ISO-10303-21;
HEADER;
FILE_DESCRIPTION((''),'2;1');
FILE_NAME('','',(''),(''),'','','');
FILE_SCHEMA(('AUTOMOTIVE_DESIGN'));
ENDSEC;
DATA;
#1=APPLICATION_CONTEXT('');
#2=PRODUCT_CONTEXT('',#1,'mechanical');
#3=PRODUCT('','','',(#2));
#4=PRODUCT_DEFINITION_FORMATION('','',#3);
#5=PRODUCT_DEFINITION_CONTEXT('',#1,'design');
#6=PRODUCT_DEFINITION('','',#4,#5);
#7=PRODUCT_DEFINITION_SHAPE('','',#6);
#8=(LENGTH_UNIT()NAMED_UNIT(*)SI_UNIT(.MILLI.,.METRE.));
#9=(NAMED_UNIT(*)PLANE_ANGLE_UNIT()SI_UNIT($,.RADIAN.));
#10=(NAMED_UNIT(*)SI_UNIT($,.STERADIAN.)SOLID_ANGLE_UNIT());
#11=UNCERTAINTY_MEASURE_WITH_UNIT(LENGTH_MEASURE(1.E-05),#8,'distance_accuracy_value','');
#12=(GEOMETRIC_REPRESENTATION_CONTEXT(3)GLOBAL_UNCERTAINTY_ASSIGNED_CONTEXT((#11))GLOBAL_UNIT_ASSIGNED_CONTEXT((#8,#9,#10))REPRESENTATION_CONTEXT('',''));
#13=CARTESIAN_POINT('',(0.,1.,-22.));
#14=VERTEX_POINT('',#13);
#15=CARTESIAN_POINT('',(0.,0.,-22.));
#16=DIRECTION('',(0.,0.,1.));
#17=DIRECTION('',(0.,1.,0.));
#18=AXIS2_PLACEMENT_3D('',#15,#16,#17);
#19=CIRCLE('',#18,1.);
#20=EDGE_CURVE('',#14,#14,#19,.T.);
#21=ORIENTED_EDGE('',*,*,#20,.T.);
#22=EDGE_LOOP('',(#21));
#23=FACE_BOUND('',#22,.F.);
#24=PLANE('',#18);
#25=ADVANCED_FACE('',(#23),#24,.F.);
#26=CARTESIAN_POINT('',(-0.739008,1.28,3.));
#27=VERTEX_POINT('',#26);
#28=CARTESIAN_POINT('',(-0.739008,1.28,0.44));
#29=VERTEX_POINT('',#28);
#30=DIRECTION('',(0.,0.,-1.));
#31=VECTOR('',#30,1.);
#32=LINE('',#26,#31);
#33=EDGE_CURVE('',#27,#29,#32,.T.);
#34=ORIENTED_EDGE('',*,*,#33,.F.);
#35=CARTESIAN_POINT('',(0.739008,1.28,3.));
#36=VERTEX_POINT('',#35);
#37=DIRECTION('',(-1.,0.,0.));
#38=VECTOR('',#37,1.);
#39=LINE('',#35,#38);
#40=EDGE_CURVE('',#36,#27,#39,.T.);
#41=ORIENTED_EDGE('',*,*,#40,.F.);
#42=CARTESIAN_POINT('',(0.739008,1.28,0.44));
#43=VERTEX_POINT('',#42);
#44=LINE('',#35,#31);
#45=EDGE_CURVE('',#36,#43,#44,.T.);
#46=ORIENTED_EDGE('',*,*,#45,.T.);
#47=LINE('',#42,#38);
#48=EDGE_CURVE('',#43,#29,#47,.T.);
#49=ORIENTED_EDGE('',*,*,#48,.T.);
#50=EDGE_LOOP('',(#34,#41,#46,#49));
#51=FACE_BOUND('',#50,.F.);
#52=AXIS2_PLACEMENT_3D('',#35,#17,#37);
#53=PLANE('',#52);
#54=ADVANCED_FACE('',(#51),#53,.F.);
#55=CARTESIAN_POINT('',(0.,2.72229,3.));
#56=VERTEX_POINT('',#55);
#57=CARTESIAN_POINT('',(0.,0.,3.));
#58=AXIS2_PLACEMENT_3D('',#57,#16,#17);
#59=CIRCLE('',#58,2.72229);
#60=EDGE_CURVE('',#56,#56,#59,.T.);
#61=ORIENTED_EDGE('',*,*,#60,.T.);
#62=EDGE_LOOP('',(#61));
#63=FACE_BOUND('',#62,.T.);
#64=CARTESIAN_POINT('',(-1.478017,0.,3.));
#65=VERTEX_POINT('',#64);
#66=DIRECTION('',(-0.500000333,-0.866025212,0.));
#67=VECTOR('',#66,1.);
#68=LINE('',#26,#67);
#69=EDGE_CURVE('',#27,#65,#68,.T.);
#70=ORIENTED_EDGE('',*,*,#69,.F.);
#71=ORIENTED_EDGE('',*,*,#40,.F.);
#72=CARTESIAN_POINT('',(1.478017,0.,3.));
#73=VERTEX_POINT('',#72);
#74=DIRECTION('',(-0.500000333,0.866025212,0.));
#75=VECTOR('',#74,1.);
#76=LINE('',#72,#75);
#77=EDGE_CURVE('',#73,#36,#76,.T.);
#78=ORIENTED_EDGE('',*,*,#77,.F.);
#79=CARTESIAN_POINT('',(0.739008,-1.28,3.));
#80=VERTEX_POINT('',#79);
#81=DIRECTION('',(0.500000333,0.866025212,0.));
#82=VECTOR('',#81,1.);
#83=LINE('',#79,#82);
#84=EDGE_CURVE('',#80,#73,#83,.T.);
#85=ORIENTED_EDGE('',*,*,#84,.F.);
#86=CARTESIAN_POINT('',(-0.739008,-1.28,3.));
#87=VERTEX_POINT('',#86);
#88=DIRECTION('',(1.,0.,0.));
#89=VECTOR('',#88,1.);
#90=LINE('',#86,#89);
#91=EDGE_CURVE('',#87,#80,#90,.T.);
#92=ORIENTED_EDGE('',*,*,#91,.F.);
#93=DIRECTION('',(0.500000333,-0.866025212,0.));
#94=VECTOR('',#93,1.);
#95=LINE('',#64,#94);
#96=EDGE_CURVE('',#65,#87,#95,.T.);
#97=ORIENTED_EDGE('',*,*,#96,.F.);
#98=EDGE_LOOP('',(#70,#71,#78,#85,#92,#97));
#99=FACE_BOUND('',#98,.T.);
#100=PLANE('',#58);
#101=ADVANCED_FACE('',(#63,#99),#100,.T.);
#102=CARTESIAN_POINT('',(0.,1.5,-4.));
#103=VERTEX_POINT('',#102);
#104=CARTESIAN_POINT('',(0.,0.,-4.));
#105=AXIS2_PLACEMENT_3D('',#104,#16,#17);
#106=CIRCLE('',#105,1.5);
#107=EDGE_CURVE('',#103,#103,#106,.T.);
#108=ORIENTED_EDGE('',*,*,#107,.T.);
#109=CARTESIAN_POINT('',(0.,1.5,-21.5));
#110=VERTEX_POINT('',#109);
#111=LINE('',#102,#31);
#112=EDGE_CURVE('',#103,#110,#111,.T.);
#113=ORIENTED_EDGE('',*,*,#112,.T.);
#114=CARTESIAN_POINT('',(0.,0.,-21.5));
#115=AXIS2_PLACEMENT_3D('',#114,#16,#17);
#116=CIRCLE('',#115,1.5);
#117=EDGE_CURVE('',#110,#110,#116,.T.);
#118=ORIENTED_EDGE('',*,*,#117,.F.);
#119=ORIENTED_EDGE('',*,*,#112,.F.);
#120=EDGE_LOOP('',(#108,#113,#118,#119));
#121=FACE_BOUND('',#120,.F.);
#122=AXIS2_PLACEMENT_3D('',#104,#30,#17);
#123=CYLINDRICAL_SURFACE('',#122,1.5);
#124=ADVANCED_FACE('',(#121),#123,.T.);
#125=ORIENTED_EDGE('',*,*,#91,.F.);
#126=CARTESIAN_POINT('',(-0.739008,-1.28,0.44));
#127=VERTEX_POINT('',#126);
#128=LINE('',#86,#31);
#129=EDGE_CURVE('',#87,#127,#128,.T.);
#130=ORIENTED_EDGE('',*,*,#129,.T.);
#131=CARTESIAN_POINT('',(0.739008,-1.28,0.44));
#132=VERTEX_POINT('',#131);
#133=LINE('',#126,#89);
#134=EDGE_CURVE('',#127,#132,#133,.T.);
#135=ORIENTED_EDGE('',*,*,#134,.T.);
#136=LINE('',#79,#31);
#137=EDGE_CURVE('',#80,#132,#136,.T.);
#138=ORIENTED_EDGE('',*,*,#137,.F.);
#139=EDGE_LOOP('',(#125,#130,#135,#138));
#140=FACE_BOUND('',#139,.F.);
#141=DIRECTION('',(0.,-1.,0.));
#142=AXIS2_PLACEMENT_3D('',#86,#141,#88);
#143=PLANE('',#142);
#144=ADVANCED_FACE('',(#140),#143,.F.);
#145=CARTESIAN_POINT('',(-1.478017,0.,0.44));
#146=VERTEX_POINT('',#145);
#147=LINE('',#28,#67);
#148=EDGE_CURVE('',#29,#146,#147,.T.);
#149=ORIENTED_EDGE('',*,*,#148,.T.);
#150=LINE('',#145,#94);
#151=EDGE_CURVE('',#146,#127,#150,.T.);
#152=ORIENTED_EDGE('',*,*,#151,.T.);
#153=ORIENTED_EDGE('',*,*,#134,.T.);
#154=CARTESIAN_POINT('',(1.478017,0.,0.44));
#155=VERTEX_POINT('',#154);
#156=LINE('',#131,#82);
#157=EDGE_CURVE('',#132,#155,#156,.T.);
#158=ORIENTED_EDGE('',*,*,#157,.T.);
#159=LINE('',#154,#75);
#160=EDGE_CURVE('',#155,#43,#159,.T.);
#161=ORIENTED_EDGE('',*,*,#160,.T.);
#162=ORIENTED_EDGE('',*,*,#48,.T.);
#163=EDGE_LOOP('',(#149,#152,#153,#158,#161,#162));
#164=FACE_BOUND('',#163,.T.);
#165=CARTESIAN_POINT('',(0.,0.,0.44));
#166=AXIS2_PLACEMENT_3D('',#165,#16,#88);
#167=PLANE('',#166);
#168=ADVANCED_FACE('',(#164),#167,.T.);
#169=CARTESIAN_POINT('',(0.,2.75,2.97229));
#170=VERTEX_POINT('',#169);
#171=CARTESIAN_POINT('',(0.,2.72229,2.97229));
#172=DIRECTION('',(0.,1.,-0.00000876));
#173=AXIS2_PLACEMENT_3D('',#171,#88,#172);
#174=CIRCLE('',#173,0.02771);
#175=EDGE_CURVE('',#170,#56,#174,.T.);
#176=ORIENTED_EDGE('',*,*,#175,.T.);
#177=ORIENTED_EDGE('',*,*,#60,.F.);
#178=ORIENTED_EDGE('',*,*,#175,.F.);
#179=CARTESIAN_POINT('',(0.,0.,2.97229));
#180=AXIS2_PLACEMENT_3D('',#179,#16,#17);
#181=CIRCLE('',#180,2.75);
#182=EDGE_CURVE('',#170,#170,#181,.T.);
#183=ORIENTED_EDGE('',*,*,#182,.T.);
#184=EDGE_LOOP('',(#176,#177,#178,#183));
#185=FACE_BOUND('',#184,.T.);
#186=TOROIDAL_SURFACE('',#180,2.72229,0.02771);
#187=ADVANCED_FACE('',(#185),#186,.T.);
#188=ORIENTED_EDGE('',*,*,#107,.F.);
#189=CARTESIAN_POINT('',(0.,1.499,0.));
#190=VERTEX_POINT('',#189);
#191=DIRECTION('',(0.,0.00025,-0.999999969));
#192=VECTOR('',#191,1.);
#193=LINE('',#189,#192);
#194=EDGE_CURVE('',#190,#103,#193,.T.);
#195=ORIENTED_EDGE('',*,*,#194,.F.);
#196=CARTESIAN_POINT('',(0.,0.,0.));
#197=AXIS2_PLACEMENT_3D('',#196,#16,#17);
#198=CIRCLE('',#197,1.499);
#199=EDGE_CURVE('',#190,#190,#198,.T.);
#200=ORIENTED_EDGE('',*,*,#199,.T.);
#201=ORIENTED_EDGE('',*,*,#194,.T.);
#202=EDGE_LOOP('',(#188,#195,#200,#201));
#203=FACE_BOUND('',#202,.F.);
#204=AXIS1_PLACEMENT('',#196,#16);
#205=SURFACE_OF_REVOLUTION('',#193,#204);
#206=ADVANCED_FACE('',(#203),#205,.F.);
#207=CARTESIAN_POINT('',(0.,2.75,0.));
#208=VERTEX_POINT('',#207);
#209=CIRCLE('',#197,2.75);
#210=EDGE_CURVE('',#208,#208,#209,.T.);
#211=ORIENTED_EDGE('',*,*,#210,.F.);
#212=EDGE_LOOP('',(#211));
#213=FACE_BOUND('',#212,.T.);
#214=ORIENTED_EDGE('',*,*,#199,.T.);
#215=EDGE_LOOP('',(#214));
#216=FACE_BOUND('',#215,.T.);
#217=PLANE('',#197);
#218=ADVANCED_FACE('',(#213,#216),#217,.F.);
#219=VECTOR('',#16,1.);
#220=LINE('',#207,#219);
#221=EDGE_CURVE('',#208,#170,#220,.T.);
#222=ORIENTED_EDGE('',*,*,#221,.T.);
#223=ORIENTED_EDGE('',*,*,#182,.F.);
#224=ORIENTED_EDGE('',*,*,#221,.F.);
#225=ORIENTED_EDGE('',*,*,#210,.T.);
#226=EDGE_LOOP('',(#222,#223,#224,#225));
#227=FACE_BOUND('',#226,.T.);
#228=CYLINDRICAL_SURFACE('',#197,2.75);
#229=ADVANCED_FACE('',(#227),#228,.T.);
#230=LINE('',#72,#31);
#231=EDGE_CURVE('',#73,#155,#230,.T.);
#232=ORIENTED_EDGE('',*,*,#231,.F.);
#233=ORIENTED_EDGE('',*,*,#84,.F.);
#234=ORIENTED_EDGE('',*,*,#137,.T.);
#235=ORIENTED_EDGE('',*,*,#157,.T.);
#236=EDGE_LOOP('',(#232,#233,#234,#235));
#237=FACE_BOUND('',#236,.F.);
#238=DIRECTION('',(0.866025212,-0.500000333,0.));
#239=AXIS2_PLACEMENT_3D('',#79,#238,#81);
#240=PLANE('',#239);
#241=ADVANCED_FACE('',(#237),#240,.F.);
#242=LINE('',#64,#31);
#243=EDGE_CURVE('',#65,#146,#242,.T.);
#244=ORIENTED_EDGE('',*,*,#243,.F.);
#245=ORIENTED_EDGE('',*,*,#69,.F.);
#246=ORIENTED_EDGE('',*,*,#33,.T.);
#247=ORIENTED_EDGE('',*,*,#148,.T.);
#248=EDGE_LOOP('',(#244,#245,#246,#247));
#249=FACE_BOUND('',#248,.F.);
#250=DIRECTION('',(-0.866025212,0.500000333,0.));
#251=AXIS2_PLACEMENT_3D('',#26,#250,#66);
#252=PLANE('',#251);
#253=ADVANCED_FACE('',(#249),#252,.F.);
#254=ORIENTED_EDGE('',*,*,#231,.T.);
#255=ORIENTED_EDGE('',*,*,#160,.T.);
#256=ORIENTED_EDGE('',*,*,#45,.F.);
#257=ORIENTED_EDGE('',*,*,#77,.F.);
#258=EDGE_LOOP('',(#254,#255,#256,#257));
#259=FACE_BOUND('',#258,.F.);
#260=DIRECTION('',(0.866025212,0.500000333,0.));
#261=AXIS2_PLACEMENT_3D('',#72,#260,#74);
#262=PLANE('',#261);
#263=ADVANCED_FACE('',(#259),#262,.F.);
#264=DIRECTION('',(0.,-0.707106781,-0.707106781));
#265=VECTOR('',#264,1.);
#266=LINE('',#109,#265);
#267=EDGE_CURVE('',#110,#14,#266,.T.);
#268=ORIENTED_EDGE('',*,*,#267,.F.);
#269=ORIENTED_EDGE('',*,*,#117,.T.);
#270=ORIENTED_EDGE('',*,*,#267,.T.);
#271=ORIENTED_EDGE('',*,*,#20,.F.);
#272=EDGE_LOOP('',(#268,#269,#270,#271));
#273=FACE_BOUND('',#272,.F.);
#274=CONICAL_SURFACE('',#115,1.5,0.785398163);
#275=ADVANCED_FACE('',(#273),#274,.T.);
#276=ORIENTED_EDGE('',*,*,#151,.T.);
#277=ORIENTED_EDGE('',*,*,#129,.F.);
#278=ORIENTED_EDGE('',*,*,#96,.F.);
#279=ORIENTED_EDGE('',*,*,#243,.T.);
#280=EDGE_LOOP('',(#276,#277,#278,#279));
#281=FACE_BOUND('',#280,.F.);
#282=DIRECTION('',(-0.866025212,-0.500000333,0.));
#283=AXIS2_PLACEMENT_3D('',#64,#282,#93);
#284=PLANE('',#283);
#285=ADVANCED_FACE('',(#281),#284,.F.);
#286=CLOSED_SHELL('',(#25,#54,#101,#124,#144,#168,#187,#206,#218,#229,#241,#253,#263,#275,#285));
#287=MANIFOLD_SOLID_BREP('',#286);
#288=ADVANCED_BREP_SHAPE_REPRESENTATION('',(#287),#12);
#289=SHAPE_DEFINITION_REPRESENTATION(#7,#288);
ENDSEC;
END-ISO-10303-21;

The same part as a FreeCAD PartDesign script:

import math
import FreeCAD as App
import Part
import Sketcher
Q = App.Units.Quantity

doc = App.newDocument("Part")
params = doc.addObject("Spreadsheet::Sheet", "Params")
for row, (alias, value) in enumerate([
    ("sketch1_width", "1 mm"),
    ("sketch1_height", "25 mm"),
    ("sketch1_length", "4 mm"),
    ("sketch1_height2", "17.5 mm"),
    ("revolution_angle", "360 deg"),
    ("pocket1_length", "2.56 mm"),
], start=1):
    params.set(f"A{row}", alias)
    params.set(f"B{row}", "=" + value)
    params.setAlias(f"B{row}", alias)

body = doc.addObject("PartDesign::Body", "Body")

sketch1 = body.newObject("Sketcher::SketchObject", "Sketch")
sketch1.AttachmentSupport = (doc.getObject("YZ_Plane"), [""])
sketch1.MapMode = "FlatFace"
sketch1.addGeometry([
    Part.LineSegment(App.Vector(1.499, 0, 0), App.Vector(2.75, 0, 0)),
    Part.LineSegment(App.Vector(2.75, 0, 0), App.Vector(2.75, 2.972, 0)),
    Part.ArcOfCircle(Part.Circle(App.Vector(2.722, 2.972, 0), App.Vector(0, 0, 1), 0.028), math.radians(0), math.radians(90)),
    Part.LineSegment(App.Vector(2.722, 3, 0), App.Vector(0, 3, 0)),
    Part.LineSegment(App.Vector(0, 3, 0), App.Vector(0, -22, 0)),
    Part.LineSegment(App.Vector(0, -22, 0), App.Vector(1, -22, 0)),
    Part.LineSegment(App.Vector(1, -22, 0), App.Vector(1.5, -21.5, 0)),
    Part.LineSegment(App.Vector(1.5, -21.5, 0), App.Vector(1.5, -4, 0)),
    Part.LineSegment(App.Vector(1.5, -4, 0), App.Vector(1.499, 0, 0)),
], False)
sketch1.addConstraint([
    Sketcher.Constraint("Coincident", 0, 2, 1, 1),
    Sketcher.Constraint("Coincident", 1, 2, 2, 1),
    Sketcher.Constraint("Coincident", 2, 2, 3, 1),
    Sketcher.Constraint("Coincident", 3, 2, 4, 1),
    Sketcher.Constraint("Coincident", 4, 2, 5, 1),
    Sketcher.Constraint("Coincident", 5, 2, 6, 1),
    Sketcher.Constraint("Coincident", 6, 2, 7, 1),
    Sketcher.Constraint("Coincident", 7, 2, 8, 1),
    Sketcher.Constraint("Coincident", 8, 2, 0, 1),
    Sketcher.Constraint("Horizontal", 0),
    Sketcher.Constraint("Vertical", 1),
    Sketcher.Constraint("Horizontal", 3),
    Sketcher.Constraint("Vertical", 4),
    Sketcher.Constraint("Horizontal", 5),
    Sketcher.Constraint("Vertical", 7),
    Sketcher.Constraint("PointOnObject", 0, 2, -1),
    Sketcher.Constraint("PointOnObject", 3, 2, -2),
    Sketcher.Constraint("Horizontal", 2, 3, 1, 2),
    Sketcher.Constraint("DistanceX", 5, 1, 5, 2, 1.0),
    Sketcher.Constraint("DistanceY", 4, 2, 4, 1, 25.0),
    Sketcher.Constraint("Angle", 6, Q("45 deg")),
    Sketcher.Constraint("Distance", 8, 4.0),
    Sketcher.Constraint("DistanceY", 7, 1, 7, 2, 17.5),
    Sketcher.Constraint("DistanceY", -1, 1, 2, 2, 3.0),
    Sketcher.Constraint("DistanceX", 0, 1, 0, 2, 1.251),
    Sketcher.Constraint("DistanceX", -1, 1, 0, 2, 2.75),
    Sketcher.Constraint("Radius", 2, 0.02771),
    Sketcher.Constraint("DistanceX", 3, 2, 3, 1, 2.72229),
])
sketch1.setExpression("Constraints[18]", "Params.sketch1_width")
sketch1.setExpression("Constraints[19]", "Params.sketch1_height")
sketch1.setExpression("Constraints[21]", "Params.sketch1_length")
sketch1.setExpression("Constraints[22]", "Params.sketch1_height2")
revolution = body.newObject("PartDesign::Revolution", "Revolution")
revolution.Profile = sketch1
revolution.ReferenceAxis = (sketch1, ["V_Axis"])
revolution.setExpression("Angle", "Params.revolution_angle")

sketch2 = body.newObject("Sketcher::SketchObject", "Sketch001")
sketch2.AttachmentSupport = (doc.getObject("XY_Plane"), [""])
sketch2.MapMode = "FlatFace"
sketch2.AttachmentOffset = App.Placement(App.Vector(0, 0, 3), App.Rotation())
sketch2.addGeometry([
    Part.LineSegment(App.Vector(1.5, 0, 0), App.Vector(0.7, 1.3, 0)),
    Part.LineSegment(App.Vector(0.7, 1.3, 0), App.Vector(-0.7, 1.3, 0)),
    Part.LineSegment(App.Vector(-0.7, 1.3, 0), App.Vector(-1.5, 0, 0)),
    Part.LineSegment(App.Vector(-1.5, 0, 0), App.Vector(-0.7, -1.3, 0)),
    Part.LineSegment(App.Vector(-0.7, -1.3, 0), App.Vector(0.7, -1.3, 0)),
    Part.LineSegment(App.Vector(0.7, -1.3, 0), App.Vector(1.5, 0, 0)),
], False)
sketch2.addConstraint([
    Sketcher.Constraint("Coincident", 0, 2, 1, 1),
    Sketcher.Constraint("Coincident", 1, 2, 2, 1),
    Sketcher.Constraint("Coincident", 2, 2, 3, 1),
    Sketcher.Constraint("Coincident", 3, 2, 4, 1),
    Sketcher.Constraint("Coincident", 4, 2, 5, 1),
    Sketcher.Constraint("Coincident", 5, 2, 0, 1),
    Sketcher.Constraint("Horizontal", 1),
    Sketcher.Constraint("Horizontal", 4),
    Sketcher.Constraint("Symmetric", 0, 2, 3, 2, -1, 1),
    Sketcher.Constraint("Symmetric", 2, 2, 5, 2, -1, 1),
    Sketcher.Constraint("PointOnObject", 2, 2, -1),
    Sketcher.Constraint("Parallel", 2, 5),
    Sketcher.Constraint("Vertical", 1, 2, 3, 2),
    Sketcher.Constraint("DistanceY", -1, 1, 0, 2, 1.28),
    Sketcher.Constraint("DistanceX", 1, 2, 1, 1, 1.478016),
    Sketcher.Constraint("DistanceX", 2, 2, 1, 2, 0.739009),
])
pocket1 = body.newObject("PartDesign::Pocket", "Pocket")
pocket1.Profile = sketch2
pocket1.setExpression("Length", "Params.pocket1_length")

doc.recompute()
